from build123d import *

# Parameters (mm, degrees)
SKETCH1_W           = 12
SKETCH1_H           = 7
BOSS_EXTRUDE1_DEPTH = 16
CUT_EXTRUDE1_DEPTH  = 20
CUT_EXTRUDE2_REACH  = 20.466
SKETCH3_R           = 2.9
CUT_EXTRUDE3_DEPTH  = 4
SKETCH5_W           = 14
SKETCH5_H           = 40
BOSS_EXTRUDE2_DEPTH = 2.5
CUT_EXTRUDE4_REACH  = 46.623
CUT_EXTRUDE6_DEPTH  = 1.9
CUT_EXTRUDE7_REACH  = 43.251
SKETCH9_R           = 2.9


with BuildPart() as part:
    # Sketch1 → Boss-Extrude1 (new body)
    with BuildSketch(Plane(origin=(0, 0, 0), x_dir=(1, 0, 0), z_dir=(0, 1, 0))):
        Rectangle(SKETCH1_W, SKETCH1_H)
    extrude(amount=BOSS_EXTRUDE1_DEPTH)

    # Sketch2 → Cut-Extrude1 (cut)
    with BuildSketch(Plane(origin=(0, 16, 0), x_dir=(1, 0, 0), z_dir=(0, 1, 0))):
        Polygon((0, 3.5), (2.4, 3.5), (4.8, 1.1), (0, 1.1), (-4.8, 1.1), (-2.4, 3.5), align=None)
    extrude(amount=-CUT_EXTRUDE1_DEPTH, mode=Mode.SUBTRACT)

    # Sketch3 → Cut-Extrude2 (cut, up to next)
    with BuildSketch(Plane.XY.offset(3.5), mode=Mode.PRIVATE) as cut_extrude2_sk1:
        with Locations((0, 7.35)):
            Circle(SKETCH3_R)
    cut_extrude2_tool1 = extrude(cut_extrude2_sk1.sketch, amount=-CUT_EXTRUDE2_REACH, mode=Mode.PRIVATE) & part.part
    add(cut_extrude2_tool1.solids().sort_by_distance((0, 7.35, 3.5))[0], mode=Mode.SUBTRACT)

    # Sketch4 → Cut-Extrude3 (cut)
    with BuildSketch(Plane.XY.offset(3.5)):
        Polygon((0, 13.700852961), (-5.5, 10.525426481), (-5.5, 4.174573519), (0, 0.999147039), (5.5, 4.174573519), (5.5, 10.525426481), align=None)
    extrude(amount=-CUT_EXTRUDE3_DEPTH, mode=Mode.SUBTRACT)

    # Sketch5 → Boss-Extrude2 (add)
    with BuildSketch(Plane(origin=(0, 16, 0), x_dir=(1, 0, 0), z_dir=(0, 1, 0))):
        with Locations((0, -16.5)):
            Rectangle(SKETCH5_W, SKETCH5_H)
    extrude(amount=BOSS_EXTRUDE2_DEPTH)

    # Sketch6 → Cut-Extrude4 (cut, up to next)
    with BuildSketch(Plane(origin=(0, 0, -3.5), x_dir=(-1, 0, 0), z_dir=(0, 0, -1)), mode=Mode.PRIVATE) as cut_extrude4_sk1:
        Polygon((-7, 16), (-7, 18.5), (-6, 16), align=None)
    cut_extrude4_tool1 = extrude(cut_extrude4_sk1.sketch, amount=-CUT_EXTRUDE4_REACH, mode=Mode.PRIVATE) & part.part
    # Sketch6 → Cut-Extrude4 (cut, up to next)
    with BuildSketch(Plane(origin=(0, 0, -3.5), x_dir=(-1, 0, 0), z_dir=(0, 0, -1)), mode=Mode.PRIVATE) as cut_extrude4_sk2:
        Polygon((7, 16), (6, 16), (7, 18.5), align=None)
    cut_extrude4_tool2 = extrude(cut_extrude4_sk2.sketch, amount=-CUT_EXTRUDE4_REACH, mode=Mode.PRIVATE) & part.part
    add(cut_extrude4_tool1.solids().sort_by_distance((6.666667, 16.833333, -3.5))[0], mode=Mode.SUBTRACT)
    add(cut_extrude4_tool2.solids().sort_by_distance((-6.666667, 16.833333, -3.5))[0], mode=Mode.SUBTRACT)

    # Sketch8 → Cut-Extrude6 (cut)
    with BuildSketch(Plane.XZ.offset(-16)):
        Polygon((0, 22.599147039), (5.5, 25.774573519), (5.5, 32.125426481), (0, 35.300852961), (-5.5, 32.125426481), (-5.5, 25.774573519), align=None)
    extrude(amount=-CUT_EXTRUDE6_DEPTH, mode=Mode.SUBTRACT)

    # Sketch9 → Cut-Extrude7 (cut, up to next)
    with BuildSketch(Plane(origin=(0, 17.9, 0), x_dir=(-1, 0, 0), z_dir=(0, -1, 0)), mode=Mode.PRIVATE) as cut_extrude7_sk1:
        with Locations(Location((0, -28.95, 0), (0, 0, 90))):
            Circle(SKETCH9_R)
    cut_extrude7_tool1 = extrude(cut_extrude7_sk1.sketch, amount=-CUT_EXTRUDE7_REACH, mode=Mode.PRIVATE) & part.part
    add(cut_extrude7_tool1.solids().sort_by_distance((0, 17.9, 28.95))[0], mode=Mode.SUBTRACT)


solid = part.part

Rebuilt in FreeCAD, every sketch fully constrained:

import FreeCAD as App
import Part
import Sketcher

V = App.Vector
Q = App.Units.Quantity


def add_polygon(sketch, points):
    """Adds a closed chain of lines whose ends are joined by coincident constraints."""
    first, n = sketch.GeometryCount, len(points)
    for a, b in zip(points, points[1:] + points[:1]):
        sketch.addGeometry(Part.LineSegment(App.Vector(*a, 0), App.Vector(*b, 0)), False)
    for i in range(n):
        sketch.addConstraint(Sketcher.Constraint("Coincident", first + i, 2, first + (i + 1) % n, 1))

doc = App.newDocument("Part")
params = doc.addObject("Spreadsheet::Sheet", "Params")
for row, (alias, value) in enumerate([
    ("sketch1_width", "12 mm"),
    ("sketch1_height", "7 mm"),
    ("pad1_length", "16 mm"),
    ("sketch2_width", "4.8 mm"),
    ("sketch2_width2", "9.6 mm"),
    ("pocket1_length", "20 mm"),
    ("sketch3_diameter", "5.8 mm"),
    ("pocket3_length", "4 mm"),
    ("sketch5_width", "14 mm"),
    ("sketch5_height", "40 mm"),
    ("pad2_length", "2.5 mm"),
    ("sketch6_width", "1 mm"),
    ("sketch6_height", "2.5 mm"),
    ("sketch7_width", "1 mm"),
    ("sketch7_height", "2.5 mm"),
    ("pocket6_length", "1.9 mm"),
    ("sketch9_diameter", "5.8 mm"),
], start=1):
    params.set(f"A{row}", alias)
    params.set(f"B{row}", "=" + value)
    params.setAlias(f"B{row}", alias)

body = doc.addObject("PartDesign::Body", "Body")

sketch1 = doc.addObject("Sketcher::SketchObject", "Sketch")
body.addObject(sketch1)
sketch1.AttachmentSupport = (doc.XZ_Plane, [""])
sketch1.MapMode = "FlatFace"
add_polygon(sketch1, [(-6, -4), (-6, 4), (6, 4), (6, -4)])
sketch1.addConstraint(Sketcher.Constraint("Vertical", 0))
sketch1.addConstraint(Sketcher.Constraint("Horizontal", 1))
sketch1.addConstraint(Sketcher.Constraint("Vertical", 2))
sketch1.addConstraint(Sketcher.Constraint("Horizontal", 3))
sketch1.addConstraint(Sketcher.Constraint("Symmetric", 0, 2, 2, 2, -1, 1))
sketch1.addConstraint(Sketcher.Constraint("DistanceX", 1, 1, 1, 2, 12.0))
sketch1.addConstraint(Sketcher.Constraint("DistanceY", 0, 1, 0, 2, 7.0))
sketch1.setExpression("Constraints[9]", "Params.sketch1_width")
sketch1.setExpression("Constraints[10]", "Params.sketch1_height")
pad1 = doc.addObject("PartDesign::Pad", "Pad")
body.addObject(pad1)
pad1.Profile = sketch1
pad1.setExpression("Length", "Params.pad1_length")
pad1.Reversed = True

sketch2 = doc.addObject("Sketcher::SketchObject", "Sketch001")
body.addObject(sketch2)
sketch2.AttachmentSupport = (doc.XZ_Plane, [""])
sketch2.MapMode = "FlatFace"
sketch2.AttachmentOffset = App.Placement(V(0, 0, -16), App.Rotation())
add_polygon(sketch2, [(2.4, -3.5), (-2.4, -3.5), (-4.8, -1.1), (4.8, -1.1)])
sketch2.addConstraint(Sketcher.Constraint("Horizontal", 0))
sketch2.addConstraint(Sketcher.Constraint("Horizontal", 2))
sketch2.addConstraint(Sketcher.Constraint("Perpendicular", 1, 3))
sketch2.addConstraint(Sketcher.Constraint("Equal", 1, 3))
sketch2.addConstraint(Sketcher.Constraint("DistanceX", 0, 2, 0, 1, 4.8))
sketch2.addConstraint(Sketcher.Constraint("DistanceX", 2, 1, 2, 2, 9.6))
sketch2.addConstraint(Sketcher.Constraint("DistanceX", 0, 2, -1, 1, 2.4))
sketch2.addConstraint(Sketcher.Constraint("DistanceY", 0, 2, -1, 1, 3.5))
sketch2.setExpression("Constraints[8]", "Params.sketch2_width")
sketch2.setExpression("Constraints[9]", "Params.sketch2_width2")
pocket1 = doc.addObject("PartDesign::Pocket", "Pocket")
body.addObject(pocket1)
pocket1.Profile = sketch2
pocket1.setExpression("Length", "Params.pocket1_length")
pocket1.Reversed = True

sketch3 = doc.addObject("Sketcher::SketchObject", "Sketch002")
body.addObject(sketch3)
sketch3.AttachmentSupport = (doc.XY_Plane, [""])
sketch3.MapMode = "FlatFace"
sketch3.AttachmentOffset = App.Placement(V(0, 0, 3.5), App.Rotation())
sketch3.addGeometry(Part.Circle(V(0, 7.3, 0), V(0, 0, 1), 2.9), False)
sketch3.addConstraint(Sketcher.Constraint("PointOnObject", 0, 3, -2))
sketch3.addConstraint(Sketcher.Constraint("Diameter", 0, 5.8))
sketch3.addConstraint(Sketcher.Constraint("DistanceY", -1, 1, 0, 3, 7.35))
sketch3.setExpression("Constraints[1]", "Params.sketch3_diameter")
pocket2 = doc.addObject("PartDesign::Pocket", "Pocket001")
body.addObject(pocket2)
pocket2.Profile = sketch3
pocket2.Type = "UpToFirst"

sketch4 = doc.addObject("Sketcher::SketchObject", "Sketch003")
body.addObject(sketch4)
sketch4.AttachmentSupport = (doc.XY_Plane, [""])
sketch4.MapMode = "FlatFace"
sketch4.AttachmentOffset = App.Placement(V(0, 0, 3.5), App.Rotation())
add_polygon(sketch4, [(0, 14), (-6, 11), (-6, 4), (0, 1), (6, 4), (6, 11)])
sketch4.addConstraint(Sketcher.Constraint("Vertical", 1))
sketch4.addConstraint(Sketcher.Constraint("Vertical", 4))
sketch4.addConstraint(Sketcher.Constraint("Symmetric", 1, 2, 3, 2, -2))
sketch4.addConstraint(Sketcher.Constraint("PointOnObject", 2, 2, -2))
sketch4.addConstraint(Sketcher.Constraint("PointOnObject", 5, 2, -2))
sketch4.addConstraint(Sketcher.Constraint("Parallel", 0, 3))
sketch4.addConstraint(Sketcher.Constraint("Parallel", 2, 5))
sketch4.addConstraint(Sketcher.Constraint("Angle", 0, Q("-150 deg")))
sketch4.addConstraint(Sketcher.Constraint("DistanceX", 1, 2, 3, 2, 11.0))
sketch4.addConstraint(Sketcher.Constraint("DistanceY", 1, 2, 1, 1, 6.350853))
sketch4.addConstraint(Sketcher.Constraint("DistanceY", -1, 1, 0, 2, 10.525426))
pocket3 = doc.addObject("PartDesign::Pocket", "Pocket002")
body.addObject(pocket3)
pocket3.Profile = sketch4
pocket3.setExpression("Length", "Params.pocket3_length")

sketch5 = doc.addObject("Sketcher::SketchObject", "Sketch004")
body.addObject(sketch5)
sketch5.AttachmentSupport = (doc.XZ_Plane, [""])
sketch5.MapMode = "FlatFace"
sketch5.AttachmentOffset = App.Placement(V(0, 0, -16), App.Rotation())
add_polygon(sketch5, [(-7, -4), (-7, 36), (7, 36), (7, -4)])
sketch5.addConstraint(Sketcher.Constraint("Vertical", 0))
sketch5.addConstraint(Sketcher.Constraint("Horizontal", 1))
sketch5.addConstraint(Sketcher.Constraint("Vertical", 2))
sketch5.addConstraint(Sketcher.Constraint("Horizontal", 3))
sketch5.addConstraint(Sketcher.Constraint("DistanceX", 1, 1, 1, 2, 14.0))
sketch5.addConstraint(Sketcher.Constraint("DistanceY", 0, 1, 0, 2, 40.0))
sketch5.addConstraint(Sketcher.Constraint("DistanceX", 0, 2, -1, 1, 7.0))
sketch5.addConstraint(Sketcher.Constraint("DistanceY", -1, 1, 0, 2, 36.5))
sketch5.setExpression("Constraints[8]", "Params.sketch5_width")
sketch5.setExpression("Constraints[9]", "Params.sketch5_height")
pad2 = doc.addObject("PartDesign::Pad", "Pad001")
body.addObject(pad2)
pad2.Profile = sketch5
pad2.setExpression("Length", "Params.pad2_length")
pad2.Reversed = True

sketch6 = doc.addObject("Sketcher::SketchObject", "Sketch005")
body.addObject(sketch6)
sketch6.AttachmentSupport = (doc.XY_Plane, [""])
sketch6.MapMode = "FlatFace"
sketch6.AttachmentOffset = App.Placement(V(0, 0, -3.5), App.Rotation())
add_polygon(sketch6, [(7, 18.5), (7, 16), (6, 16)])
sketch6.addConstraint(Sketcher.Constraint("Vertical", 0))
sketch6.addConstraint(Sketcher.Constraint("Horizontal", 1))
sketch6.addConstraint(Sketcher.Constraint("DistanceX", 1, 2, 1, 1, 1.0))
sketch6.addConstraint(Sketcher.Constraint("DistanceY", 0, 2, 0, 1, 2.5))
sketch6.addConstraint(Sketcher.Constraint("DistanceX", -1, 1, 0, 2, 7.0))
sketch6.addConstraint(Sketcher.Constraint("DistanceY", -1, 1, 0, 2, 16.0))
sketch6.setExpression("Constraints[5]", "Params.sketch6_width")
sketch6.setExpression("Constraints[6]", "Params.sketch6_height")
pocket4 = doc.addObject("PartDesign::Pocket", "Pocket003")
body.addObject(pocket4)
pocket4.Profile = sketch6
pocket4.Type = "UpToFirst"
pocket4.Reversed = True

sketch7 = doc.addObject("Sketcher::SketchObject", "Sketch006")
body.addObject(sketch7)
sketch7.AttachmentSupport = (doc.XY_Plane, [""])
sketch7.MapMode = "FlatFace"
sketch7.AttachmentOffset = App.Placement(V(0, 0, -3.5), App.Rotation())
add_polygon(sketch7, [(-6, 16), (-7, 16), (-7, 18.5)])
sketch7.addConstraint(Sketcher.Constraint("Horizontal", 0))
sketch7.addConstraint(Sketcher.Constraint("Vertical", 1))
sketch7.addConstraint(Sketcher.Constraint("DistanceX", 0, 2, 0, 1, 1.0))
sketch7.addConstraint(Sketcher.Constraint("DistanceY", 1, 1, 1, 2, 2.5))
sketch7.addConstraint(Sketcher.Constraint("DistanceX", 0, 2, -1, 1, 7.0))
sketch7.addConstraint(Sketcher.Constraint("DistanceY", -1, 1, 0, 2, 16.0))
sketch7.setExpression("Constraints[5]", "Params.sketch7_width")
sketch7.setExpression("Constraints[6]", "Params.sketch7_height")
pocket5 = doc.addObject("PartDesign::Pocket", "Pocket004")
body.addObject(pocket5)
pocket5.Profile = sketch7
pocket5.Type = "UpToFirst"
pocket5.Reversed = True

sketch8 = doc.addObject("Sketcher::SketchObject", "Sketch007")
body.addObject(sketch8)
sketch8.AttachmentSupport = (doc.XZ_Plane, [""])
sketch8.MapMode = "FlatFace"
sketch8.AttachmentOffset = App.Placement(V(0, 0, -16), App.Rotation())
add_polygon(sketch8, [(0, 23), (6, 26), (6, 32), (0, 35), (-6, 32), (-6, 26)])
sketch8.addConstraint(Sketcher.Constraint("Vertical", 1))
sketch8.addConstraint(Sketcher.Constraint("Vertical", 4))
sketch8.addConstraint(Sketcher.Constraint("Symmetric", 1, 2, 3, 2, -2))
sketch8.addConstraint(Sketcher.Constraint("PointOnObject", 2, 2, -2))
sketch8.addConstraint(Sketcher.Constraint("PointOnObject", 5, 2, -2))
sketch8.addConstraint(Sketcher.Constraint("Parallel", 0, 3))
sketch8.addConstraint(Sketcher.Constraint("Parallel", 2, 5))
sketch8.addConstraint(Sketcher.Constraint("Angle", 0, Q("30 deg")))
sketch8.addConstraint(Sketcher.Constraint("DistanceX", 3, 2, 1, 2, 11.0))
sketch8.addConstraint(Sketcher.Constraint("DistanceY", 1, 1, 1, 2, 6.350853))
sketch8.addConstraint(Sketcher.Constraint("DistanceY", -1, 1, 0, 2, 25.774574))
pocket6 = doc.addObject("PartDesign::Pocket", "Pocket005")
body.addObject(pocket6)
pocket6.Profile = sketch8
pocket6.setExpression("Length", "Params.pocket6_length")

sketch9 = doc.addObject("Sketcher::SketchObject", "Sketch008")
body.addObject(sketch9)
sketch9.AttachmentSupport = (doc.XZ_Plane, [""])
sketch9.MapMode = "FlatFace"
sketch9.AttachmentOffset = App.Placement(V(0, 0, -17.9), App.Rotation())
sketch9.addGeometry(Part.Circle(V(0, 28.9, 0), V(0, 0, 1), 2.9), False)
sketch9.addConstraint(Sketcher.Constraint("PointOnObject", 0, 3, -2))
sketch9.addConstraint(Sketcher.Constraint("Diameter", 0, 5.8))
sketch9.addConstraint(Sketcher.Constraint("DistanceY", -1, 1, 0, 3, 28.95))
sketch9.setExpression("Constraints[1]", "Params.sketch9_diameter")
pocket7 = doc.addObject("PartDesign::Pocket", "Pocket006")
body.addObject(pocket7)
pocket7.Profile = sketch9
pocket7.Type = "UpToFirst"

doc.recompute()
